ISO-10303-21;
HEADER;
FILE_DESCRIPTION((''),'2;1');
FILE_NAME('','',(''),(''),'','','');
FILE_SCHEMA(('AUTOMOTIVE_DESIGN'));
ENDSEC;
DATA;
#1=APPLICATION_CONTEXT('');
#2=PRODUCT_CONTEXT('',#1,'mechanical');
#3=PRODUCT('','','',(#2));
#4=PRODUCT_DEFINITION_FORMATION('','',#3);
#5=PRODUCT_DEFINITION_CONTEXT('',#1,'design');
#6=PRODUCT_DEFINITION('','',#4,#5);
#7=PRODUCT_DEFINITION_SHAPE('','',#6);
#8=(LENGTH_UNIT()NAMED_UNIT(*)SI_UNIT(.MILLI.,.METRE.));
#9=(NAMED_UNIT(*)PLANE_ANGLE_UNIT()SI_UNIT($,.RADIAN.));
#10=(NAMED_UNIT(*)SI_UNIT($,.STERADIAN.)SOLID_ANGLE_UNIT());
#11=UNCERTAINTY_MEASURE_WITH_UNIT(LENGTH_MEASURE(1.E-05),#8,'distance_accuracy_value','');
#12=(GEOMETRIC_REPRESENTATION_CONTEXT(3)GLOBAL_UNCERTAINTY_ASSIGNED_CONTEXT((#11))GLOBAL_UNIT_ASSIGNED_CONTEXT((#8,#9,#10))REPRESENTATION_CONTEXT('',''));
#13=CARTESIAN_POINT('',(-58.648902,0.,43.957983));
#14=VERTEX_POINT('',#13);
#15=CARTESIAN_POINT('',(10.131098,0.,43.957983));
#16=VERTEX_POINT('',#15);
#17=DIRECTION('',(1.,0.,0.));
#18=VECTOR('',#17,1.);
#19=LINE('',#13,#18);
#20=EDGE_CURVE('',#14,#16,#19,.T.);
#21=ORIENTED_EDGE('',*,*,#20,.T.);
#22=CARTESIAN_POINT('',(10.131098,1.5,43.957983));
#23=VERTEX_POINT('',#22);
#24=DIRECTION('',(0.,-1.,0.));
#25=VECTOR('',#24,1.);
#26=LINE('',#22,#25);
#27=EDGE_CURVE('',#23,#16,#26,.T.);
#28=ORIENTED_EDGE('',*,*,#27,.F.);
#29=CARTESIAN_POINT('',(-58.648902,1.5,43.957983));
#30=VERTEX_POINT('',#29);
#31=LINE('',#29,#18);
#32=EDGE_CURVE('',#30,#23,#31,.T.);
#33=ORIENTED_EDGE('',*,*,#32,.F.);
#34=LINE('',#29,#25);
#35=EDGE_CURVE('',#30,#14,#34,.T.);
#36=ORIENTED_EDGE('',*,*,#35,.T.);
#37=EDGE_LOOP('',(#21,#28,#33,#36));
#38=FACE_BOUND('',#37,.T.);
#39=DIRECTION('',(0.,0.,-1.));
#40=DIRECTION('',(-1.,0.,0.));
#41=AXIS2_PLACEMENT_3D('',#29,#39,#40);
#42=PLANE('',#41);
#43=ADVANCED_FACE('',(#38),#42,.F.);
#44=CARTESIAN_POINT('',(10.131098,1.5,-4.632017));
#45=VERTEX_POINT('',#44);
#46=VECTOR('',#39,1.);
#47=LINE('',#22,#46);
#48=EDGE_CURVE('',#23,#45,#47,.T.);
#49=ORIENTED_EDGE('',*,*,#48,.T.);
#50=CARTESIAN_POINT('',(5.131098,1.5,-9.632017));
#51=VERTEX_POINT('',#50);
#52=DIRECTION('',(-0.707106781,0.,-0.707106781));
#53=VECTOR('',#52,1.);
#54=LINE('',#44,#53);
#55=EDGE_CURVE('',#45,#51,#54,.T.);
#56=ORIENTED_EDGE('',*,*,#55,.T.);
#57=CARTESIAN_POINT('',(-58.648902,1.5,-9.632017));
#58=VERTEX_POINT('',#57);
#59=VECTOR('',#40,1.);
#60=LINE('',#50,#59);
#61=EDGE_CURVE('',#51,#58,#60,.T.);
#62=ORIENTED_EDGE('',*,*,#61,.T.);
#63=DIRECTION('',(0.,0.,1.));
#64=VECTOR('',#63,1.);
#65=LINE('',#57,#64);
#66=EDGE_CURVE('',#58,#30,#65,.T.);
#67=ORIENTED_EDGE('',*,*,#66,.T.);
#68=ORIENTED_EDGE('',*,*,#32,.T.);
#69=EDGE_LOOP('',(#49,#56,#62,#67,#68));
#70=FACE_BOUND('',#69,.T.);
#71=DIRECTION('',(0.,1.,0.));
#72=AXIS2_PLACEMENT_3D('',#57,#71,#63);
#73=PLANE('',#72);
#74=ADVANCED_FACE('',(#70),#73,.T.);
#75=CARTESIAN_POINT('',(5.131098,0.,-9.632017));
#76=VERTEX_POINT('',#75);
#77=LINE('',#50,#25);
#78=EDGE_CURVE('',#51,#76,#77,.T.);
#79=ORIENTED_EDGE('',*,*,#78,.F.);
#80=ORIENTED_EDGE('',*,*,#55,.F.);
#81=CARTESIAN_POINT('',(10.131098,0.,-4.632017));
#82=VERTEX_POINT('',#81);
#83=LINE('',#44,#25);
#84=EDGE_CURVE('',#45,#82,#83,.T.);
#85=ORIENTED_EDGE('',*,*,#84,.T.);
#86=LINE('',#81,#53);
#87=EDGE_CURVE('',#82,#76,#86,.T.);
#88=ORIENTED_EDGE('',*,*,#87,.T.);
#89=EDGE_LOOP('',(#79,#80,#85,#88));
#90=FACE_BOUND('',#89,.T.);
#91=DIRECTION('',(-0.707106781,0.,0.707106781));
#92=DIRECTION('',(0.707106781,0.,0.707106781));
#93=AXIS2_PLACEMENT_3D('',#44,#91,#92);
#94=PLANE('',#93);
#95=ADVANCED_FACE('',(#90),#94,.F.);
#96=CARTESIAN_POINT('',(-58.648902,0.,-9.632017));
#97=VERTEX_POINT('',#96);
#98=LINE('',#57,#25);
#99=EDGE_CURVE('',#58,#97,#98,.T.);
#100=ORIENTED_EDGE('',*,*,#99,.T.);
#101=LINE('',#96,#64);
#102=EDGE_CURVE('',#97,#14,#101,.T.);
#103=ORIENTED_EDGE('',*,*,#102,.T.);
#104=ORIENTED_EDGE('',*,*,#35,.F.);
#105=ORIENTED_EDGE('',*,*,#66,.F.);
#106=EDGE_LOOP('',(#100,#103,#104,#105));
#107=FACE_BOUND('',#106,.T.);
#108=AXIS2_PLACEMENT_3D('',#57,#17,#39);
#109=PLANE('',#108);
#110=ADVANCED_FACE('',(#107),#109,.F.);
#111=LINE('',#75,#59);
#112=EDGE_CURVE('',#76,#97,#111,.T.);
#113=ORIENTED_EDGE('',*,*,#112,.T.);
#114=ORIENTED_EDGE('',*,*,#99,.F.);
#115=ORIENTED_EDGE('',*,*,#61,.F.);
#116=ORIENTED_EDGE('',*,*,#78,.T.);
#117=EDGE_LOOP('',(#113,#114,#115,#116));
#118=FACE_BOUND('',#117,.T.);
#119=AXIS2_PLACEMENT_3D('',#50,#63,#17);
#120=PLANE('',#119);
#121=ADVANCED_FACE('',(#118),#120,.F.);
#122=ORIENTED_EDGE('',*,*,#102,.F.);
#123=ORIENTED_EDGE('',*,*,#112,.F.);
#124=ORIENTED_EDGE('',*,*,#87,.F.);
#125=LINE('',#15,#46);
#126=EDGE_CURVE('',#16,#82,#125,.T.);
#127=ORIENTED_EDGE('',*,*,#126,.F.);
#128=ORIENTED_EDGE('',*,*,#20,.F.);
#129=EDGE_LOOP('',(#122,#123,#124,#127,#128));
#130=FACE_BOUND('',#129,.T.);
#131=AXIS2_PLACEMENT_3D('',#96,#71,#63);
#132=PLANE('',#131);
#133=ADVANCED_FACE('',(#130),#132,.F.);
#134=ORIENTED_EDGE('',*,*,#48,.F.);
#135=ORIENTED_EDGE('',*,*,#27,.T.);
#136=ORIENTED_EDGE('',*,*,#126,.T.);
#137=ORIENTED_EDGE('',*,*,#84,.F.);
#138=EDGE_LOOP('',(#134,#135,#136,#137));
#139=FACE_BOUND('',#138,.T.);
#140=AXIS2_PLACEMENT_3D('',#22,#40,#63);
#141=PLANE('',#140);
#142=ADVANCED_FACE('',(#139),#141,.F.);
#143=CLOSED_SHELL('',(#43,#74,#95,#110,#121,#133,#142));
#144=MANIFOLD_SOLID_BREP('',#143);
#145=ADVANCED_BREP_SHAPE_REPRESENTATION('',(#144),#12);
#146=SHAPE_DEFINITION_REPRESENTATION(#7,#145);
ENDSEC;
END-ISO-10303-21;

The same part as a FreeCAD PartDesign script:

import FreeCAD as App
import Part
import Sketcher

V = App.Vector
Q = App.Units.Quantity

doc = App.newDocument("Part")
body = doc.addObject("PartDesign::Body", "Body")

sketch1 = body.newObject("Sketcher::SketchObject", "Sketch")
sketch1.AttachmentSupport = (doc.getObject("XZ_Plane"), [""])
sketch1.MapMode = "FlatFace"
sketch1.addGeometry([
    Part.LineSegment(V(-58.648902, -9.632017, 0), V(-58.648902, 43.957983, 0)),
    Part.LineSegment(V(-58.648902, 43.957983, 0), V(10.131098, 43.957983, 0)),
    Part.LineSegment(V(10.131098, 43.957983, 0), V(10.131098, -4.632017, 0)),
    Part.LineSegment(V(10.131098, -4.632017, 0), V(5.131098, -9.632017, 0)),
    Part.LineSegment(V(5.131098, -9.632017, 0), V(-58.648902, -9.632017, 0)),
], False)
sketch1.addConstraint([
    Sketcher.Constraint("Coincident", 0, 2, 1, 1),
    Sketcher.Constraint("Coincident", 1, 2, 2, 1),
    Sketcher.Constraint("Coincident", 2, 2, 3, 1),
    Sketcher.Constraint("Coincident", 3, 2, 4, 1),
    Sketcher.Constraint("Coincident", 4, 2, 0, 1),
    Sketcher.Constraint("Vertical", 0),
    Sketcher.Constraint("Horizontal", 1),
    Sketcher.Constraint("Vertical", 2),
    Sketcher.Constraint("Horizontal", 4),
    Sketcher.Constraint("Angle", 3, Q("-135 deg")),
    Sketcher.Constraint("DistanceX", 3, 2, 2, 2, 5.0),
    Sketcher.Constraint("DistanceX", 1, 1, 1, 2, 68.78),
    Sketcher.Constraint("DistanceY", 0, 1, 0, 2, 53.59),
    Sketcher.Constraint("DistanceX", 0, 2, -1, 1, 58.648902),
    Sketcher.Constraint("DistanceY", -1, 1, 0, 2, 43.957983),
])
pad1 = body.newObject("PartDesign::Pad", "Pad")
pad1.Profile = sketch1
pad1.Length = 1.5
pad1.Reversed = True

doc.recompute()
